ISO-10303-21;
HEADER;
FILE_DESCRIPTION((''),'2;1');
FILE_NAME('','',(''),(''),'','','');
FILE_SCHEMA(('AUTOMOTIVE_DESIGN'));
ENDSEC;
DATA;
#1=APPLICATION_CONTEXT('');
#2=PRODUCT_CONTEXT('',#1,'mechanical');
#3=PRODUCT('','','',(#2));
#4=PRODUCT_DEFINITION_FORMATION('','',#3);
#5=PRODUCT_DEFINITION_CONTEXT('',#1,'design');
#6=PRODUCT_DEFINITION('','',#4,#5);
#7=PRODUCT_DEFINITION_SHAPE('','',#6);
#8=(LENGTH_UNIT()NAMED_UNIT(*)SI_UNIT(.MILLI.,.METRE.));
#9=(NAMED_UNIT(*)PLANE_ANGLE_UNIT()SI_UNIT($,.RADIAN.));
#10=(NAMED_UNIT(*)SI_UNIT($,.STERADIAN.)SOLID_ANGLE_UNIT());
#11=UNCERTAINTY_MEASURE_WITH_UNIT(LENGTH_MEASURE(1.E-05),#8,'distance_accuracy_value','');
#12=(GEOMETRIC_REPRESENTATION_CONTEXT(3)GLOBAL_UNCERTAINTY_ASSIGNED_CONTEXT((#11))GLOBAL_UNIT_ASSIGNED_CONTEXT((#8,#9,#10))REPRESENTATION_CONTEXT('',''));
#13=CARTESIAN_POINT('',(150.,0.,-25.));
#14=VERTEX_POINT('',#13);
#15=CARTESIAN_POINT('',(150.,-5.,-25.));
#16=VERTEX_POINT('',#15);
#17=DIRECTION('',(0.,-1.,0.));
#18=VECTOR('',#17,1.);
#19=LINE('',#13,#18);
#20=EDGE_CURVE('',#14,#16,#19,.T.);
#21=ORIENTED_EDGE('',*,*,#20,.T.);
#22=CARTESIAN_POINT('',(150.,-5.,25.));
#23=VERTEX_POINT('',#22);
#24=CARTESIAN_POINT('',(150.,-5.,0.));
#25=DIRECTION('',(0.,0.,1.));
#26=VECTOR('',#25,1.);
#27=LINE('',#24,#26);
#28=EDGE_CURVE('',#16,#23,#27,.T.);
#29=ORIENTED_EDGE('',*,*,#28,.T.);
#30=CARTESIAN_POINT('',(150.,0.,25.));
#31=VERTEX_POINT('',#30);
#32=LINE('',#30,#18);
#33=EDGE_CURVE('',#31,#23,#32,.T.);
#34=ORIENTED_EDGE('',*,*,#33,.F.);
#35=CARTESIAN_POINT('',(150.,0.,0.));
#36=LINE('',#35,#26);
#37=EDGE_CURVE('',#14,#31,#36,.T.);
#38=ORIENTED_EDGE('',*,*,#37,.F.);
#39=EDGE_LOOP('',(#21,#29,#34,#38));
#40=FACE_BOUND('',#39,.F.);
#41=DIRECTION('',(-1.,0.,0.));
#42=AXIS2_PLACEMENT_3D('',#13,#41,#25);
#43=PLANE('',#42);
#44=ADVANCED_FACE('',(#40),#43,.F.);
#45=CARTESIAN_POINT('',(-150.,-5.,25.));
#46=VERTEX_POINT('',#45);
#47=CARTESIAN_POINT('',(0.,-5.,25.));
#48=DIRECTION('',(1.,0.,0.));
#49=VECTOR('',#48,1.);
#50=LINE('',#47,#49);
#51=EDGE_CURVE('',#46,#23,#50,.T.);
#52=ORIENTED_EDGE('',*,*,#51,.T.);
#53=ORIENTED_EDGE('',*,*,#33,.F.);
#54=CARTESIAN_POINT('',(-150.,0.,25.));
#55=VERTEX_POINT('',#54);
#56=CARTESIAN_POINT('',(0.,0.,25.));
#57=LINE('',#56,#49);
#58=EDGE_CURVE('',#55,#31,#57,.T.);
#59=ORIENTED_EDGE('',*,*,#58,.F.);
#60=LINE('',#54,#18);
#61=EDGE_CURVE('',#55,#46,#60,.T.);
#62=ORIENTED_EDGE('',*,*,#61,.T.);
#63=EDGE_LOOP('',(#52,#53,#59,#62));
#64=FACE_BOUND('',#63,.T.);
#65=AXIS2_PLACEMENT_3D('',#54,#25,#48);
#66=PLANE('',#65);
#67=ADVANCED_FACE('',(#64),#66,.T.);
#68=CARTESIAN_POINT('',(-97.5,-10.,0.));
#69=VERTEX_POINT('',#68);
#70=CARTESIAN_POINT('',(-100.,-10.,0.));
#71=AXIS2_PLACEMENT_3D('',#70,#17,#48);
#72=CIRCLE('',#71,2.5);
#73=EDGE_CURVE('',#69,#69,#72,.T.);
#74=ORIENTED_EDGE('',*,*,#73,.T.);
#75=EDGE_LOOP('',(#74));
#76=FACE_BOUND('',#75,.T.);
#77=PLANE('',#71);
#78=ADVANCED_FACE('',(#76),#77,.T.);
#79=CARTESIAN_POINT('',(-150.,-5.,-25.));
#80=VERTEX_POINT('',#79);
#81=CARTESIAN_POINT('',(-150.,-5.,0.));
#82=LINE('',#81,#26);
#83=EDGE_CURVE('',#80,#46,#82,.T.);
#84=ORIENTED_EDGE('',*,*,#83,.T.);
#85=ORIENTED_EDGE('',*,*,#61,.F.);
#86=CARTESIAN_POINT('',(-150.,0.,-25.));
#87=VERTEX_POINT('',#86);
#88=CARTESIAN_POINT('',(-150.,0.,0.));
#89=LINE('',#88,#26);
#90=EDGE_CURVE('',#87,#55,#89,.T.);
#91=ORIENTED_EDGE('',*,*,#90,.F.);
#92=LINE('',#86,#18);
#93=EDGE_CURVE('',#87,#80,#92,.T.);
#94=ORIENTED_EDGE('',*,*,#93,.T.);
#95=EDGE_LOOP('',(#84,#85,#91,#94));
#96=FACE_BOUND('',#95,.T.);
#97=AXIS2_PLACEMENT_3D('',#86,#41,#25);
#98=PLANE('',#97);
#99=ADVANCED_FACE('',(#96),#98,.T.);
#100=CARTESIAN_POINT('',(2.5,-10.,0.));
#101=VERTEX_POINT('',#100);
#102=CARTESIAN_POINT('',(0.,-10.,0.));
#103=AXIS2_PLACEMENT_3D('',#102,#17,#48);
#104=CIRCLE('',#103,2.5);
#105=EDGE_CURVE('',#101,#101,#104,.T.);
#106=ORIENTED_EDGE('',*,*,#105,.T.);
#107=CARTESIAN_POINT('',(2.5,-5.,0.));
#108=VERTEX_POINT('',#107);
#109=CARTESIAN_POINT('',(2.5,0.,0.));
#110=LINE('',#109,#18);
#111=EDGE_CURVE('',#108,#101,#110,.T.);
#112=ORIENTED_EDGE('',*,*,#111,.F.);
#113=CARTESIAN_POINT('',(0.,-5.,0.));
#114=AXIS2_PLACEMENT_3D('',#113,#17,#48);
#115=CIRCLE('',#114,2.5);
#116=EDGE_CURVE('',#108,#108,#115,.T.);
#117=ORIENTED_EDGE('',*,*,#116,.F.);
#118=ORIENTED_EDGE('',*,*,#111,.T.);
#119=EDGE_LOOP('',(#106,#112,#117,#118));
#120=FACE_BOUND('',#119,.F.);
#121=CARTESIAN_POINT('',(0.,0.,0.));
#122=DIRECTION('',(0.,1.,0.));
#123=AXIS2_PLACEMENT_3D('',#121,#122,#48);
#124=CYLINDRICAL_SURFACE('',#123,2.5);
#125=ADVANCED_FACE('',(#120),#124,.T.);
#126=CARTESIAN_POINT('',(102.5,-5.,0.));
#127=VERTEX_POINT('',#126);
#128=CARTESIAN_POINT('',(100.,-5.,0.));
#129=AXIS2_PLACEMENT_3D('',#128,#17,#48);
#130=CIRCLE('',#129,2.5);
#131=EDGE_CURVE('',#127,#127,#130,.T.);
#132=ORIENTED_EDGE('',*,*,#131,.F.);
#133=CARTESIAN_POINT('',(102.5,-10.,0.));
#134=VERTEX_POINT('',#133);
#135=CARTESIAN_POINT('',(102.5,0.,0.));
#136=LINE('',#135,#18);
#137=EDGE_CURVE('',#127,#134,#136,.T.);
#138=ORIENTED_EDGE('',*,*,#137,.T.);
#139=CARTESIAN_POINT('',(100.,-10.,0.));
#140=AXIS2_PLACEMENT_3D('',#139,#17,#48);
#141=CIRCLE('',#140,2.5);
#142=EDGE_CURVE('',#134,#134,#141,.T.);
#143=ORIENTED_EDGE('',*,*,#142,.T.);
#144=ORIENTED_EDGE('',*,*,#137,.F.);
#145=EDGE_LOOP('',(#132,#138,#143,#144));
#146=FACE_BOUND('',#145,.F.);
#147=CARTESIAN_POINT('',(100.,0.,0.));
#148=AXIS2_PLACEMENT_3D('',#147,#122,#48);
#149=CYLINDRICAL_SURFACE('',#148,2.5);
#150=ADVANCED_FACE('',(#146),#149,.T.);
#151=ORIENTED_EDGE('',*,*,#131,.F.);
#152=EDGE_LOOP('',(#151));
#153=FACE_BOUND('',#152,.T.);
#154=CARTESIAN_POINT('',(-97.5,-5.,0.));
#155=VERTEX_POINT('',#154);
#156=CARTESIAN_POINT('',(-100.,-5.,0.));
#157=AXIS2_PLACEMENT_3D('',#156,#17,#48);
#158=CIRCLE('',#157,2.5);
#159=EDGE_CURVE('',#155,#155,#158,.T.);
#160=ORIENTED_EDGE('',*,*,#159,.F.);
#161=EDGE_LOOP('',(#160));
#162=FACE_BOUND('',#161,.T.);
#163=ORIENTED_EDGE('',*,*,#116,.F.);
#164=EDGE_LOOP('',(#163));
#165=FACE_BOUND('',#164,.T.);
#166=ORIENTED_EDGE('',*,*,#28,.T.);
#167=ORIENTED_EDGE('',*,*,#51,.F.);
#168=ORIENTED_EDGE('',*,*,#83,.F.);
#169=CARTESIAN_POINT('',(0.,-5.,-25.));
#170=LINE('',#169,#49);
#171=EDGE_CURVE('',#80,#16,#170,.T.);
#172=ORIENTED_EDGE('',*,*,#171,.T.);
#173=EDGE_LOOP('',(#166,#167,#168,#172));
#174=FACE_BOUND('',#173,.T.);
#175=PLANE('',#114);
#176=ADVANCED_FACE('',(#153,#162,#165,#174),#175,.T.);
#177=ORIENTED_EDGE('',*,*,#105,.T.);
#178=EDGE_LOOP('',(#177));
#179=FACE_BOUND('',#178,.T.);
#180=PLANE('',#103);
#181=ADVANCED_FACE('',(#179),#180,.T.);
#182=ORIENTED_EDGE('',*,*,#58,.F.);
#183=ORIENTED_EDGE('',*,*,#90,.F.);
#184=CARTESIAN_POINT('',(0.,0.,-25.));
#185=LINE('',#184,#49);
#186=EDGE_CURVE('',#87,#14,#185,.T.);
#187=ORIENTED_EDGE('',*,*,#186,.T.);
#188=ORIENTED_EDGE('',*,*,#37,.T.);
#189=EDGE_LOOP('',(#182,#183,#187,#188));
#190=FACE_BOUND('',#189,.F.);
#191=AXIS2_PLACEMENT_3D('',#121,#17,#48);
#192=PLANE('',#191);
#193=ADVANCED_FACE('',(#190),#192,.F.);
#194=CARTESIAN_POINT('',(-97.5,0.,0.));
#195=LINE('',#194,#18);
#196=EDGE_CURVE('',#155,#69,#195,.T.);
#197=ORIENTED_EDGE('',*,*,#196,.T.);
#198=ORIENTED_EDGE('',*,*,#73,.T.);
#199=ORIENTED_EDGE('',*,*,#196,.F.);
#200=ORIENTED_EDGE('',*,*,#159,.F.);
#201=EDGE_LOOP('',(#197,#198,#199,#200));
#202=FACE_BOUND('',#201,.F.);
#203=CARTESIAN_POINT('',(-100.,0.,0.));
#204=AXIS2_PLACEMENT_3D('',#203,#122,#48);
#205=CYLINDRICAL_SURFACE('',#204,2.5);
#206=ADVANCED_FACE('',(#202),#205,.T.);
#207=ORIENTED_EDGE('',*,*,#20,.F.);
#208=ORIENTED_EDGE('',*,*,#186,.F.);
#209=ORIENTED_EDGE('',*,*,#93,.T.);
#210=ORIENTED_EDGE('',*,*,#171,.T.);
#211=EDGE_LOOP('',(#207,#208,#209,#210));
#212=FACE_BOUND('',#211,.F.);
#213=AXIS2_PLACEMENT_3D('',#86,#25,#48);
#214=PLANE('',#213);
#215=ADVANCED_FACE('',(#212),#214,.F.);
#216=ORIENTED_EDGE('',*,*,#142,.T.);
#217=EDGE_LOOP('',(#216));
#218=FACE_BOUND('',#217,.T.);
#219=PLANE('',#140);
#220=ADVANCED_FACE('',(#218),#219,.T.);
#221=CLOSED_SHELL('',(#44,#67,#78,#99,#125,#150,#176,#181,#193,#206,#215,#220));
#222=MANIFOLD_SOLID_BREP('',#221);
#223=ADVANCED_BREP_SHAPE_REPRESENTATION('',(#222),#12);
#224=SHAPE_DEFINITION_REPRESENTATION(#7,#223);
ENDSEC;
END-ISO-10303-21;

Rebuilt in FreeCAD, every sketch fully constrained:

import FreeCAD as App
import Part
import Sketcher
from FreeCAD import Vector
Q = App.Units.Quantity


def add_polygon(sketch, points):
    """Adds a closed chain of lines whose ends are joined by coincident constraints."""
    first, n = sketch.GeometryCount, len(points)
    for a, b in zip(points, points[1:] + points[:1]):
        sketch.addGeometry(Part.LineSegment(App.Vector(*a, 0), App.Vector(*b, 0)), False)
    for i in range(n):
        sketch.addConstraint(Sketcher.Constraint("Coincident", first + i, 2, first + (i + 1) % n, 1))

doc = App.newDocument("Part")
body = doc.addObject("PartDesign::Body", "Body")

sketch1 = body.newObject("Sketcher::SketchObject", "Sketch")
sketch1.AttachmentSupport = (doc.getObject("XZ_Plane"), [""])
sketch1.MapMode = "FlatFace"
add_polygon(sketch1, [(-150, 25), (-150, -25), (150, -25), (150, 25)])
sketch1.addGeometry(Part.Circle(Vector(-100, 0, 0), Vector(0, 0, 1), 2.5), False)
sketch1.addGeometry(Part.Circle(Vector(0, 0, 0), Vector(0, 0, 1), 2.5), False)
sketch1.addGeometry(Part.Circle(Vector(100, 0, 0), Vector(0, 0, 1), 2.5), False)
sketch1.addConstraint([
    Sketcher.Constraint("Vertical", 0),
    Sketcher.Constraint("Horizontal", 1),
    Sketcher.Constraint("Vertical", 2),
    Sketcher.Constraint("Horizontal", 3),
    Sketcher.Constraint("Coincident", 5, 3, -1, 1),
    Sketcher.Constraint("Equal", 4, 5),
    Sketcher.Constraint("Equal", 5, 6),
    Sketcher.Constraint("Symmetric", 4, 3, 6, 3, -1, 1),
    Sketcher.Constraint("Symmetric", 0, 2, 2, 2, -1, 1),
    Sketcher.Constraint("PointOnObject", 4, 3, -1),
    Sketcher.Constraint("Diameter", 4, Q("5 mm")),
    Sketcher.Constraint("DistanceX", 1, 1, 1, 2, Q("300 mm")),
    Sketcher.Constraint("DistanceY", 0, 2, 0, 1, Q("50 mm")),
    Sketcher.Constraint("DistanceX", 4, 3, -1, 1, Q("100 mm")),
])
pad1 = body.newObject("PartDesign::Pad", "Pad")
pad1.Profile = sketch1
pad1.Length = 5

sketch2 = body.newObject("Sketcher::SketchObject", "Sketch001")
sketch2.AttachmentSupport = (doc.getObject("XZ_Plane"), [""])
sketch2.MapMode = "FlatFace"
sketch2.addGeometry([
    Part.Circle(Vector(-100, 0, 0), Vector(0, 0, 1), 2.5),
    Part.Circle(Vector(0, 0, 0), Vector(0, 0, 1), 2.5),
    Part.Circle(Vector(100, 0, 0), Vector(0, 0, 1), 2.5),
], False)
sketch2.addConstraint([
    Sketcher.Constraint("Coincident", 1, 3, -1, 1),
    Sketcher.Constraint("Equal", 0, 1),
    Sketcher.Constraint("Equal", 1, 2),
    Sketcher.Constraint("Symmetric", 0, 3, 2, 3, -1, 1),
    Sketcher.Constraint("PointOnObject", 0, 3, -1),
    Sketcher.Constraint("Diameter", 0, Q("5 mm")),
    Sketcher.Constraint("DistanceX", 0, 3, -1, 1, Q("100 mm")),
])
pad2 = body.newObject("PartDesign::Pad", "Pad001")
pad2.Profile = sketch2
pad2.Length = 10

doc.recompute()
